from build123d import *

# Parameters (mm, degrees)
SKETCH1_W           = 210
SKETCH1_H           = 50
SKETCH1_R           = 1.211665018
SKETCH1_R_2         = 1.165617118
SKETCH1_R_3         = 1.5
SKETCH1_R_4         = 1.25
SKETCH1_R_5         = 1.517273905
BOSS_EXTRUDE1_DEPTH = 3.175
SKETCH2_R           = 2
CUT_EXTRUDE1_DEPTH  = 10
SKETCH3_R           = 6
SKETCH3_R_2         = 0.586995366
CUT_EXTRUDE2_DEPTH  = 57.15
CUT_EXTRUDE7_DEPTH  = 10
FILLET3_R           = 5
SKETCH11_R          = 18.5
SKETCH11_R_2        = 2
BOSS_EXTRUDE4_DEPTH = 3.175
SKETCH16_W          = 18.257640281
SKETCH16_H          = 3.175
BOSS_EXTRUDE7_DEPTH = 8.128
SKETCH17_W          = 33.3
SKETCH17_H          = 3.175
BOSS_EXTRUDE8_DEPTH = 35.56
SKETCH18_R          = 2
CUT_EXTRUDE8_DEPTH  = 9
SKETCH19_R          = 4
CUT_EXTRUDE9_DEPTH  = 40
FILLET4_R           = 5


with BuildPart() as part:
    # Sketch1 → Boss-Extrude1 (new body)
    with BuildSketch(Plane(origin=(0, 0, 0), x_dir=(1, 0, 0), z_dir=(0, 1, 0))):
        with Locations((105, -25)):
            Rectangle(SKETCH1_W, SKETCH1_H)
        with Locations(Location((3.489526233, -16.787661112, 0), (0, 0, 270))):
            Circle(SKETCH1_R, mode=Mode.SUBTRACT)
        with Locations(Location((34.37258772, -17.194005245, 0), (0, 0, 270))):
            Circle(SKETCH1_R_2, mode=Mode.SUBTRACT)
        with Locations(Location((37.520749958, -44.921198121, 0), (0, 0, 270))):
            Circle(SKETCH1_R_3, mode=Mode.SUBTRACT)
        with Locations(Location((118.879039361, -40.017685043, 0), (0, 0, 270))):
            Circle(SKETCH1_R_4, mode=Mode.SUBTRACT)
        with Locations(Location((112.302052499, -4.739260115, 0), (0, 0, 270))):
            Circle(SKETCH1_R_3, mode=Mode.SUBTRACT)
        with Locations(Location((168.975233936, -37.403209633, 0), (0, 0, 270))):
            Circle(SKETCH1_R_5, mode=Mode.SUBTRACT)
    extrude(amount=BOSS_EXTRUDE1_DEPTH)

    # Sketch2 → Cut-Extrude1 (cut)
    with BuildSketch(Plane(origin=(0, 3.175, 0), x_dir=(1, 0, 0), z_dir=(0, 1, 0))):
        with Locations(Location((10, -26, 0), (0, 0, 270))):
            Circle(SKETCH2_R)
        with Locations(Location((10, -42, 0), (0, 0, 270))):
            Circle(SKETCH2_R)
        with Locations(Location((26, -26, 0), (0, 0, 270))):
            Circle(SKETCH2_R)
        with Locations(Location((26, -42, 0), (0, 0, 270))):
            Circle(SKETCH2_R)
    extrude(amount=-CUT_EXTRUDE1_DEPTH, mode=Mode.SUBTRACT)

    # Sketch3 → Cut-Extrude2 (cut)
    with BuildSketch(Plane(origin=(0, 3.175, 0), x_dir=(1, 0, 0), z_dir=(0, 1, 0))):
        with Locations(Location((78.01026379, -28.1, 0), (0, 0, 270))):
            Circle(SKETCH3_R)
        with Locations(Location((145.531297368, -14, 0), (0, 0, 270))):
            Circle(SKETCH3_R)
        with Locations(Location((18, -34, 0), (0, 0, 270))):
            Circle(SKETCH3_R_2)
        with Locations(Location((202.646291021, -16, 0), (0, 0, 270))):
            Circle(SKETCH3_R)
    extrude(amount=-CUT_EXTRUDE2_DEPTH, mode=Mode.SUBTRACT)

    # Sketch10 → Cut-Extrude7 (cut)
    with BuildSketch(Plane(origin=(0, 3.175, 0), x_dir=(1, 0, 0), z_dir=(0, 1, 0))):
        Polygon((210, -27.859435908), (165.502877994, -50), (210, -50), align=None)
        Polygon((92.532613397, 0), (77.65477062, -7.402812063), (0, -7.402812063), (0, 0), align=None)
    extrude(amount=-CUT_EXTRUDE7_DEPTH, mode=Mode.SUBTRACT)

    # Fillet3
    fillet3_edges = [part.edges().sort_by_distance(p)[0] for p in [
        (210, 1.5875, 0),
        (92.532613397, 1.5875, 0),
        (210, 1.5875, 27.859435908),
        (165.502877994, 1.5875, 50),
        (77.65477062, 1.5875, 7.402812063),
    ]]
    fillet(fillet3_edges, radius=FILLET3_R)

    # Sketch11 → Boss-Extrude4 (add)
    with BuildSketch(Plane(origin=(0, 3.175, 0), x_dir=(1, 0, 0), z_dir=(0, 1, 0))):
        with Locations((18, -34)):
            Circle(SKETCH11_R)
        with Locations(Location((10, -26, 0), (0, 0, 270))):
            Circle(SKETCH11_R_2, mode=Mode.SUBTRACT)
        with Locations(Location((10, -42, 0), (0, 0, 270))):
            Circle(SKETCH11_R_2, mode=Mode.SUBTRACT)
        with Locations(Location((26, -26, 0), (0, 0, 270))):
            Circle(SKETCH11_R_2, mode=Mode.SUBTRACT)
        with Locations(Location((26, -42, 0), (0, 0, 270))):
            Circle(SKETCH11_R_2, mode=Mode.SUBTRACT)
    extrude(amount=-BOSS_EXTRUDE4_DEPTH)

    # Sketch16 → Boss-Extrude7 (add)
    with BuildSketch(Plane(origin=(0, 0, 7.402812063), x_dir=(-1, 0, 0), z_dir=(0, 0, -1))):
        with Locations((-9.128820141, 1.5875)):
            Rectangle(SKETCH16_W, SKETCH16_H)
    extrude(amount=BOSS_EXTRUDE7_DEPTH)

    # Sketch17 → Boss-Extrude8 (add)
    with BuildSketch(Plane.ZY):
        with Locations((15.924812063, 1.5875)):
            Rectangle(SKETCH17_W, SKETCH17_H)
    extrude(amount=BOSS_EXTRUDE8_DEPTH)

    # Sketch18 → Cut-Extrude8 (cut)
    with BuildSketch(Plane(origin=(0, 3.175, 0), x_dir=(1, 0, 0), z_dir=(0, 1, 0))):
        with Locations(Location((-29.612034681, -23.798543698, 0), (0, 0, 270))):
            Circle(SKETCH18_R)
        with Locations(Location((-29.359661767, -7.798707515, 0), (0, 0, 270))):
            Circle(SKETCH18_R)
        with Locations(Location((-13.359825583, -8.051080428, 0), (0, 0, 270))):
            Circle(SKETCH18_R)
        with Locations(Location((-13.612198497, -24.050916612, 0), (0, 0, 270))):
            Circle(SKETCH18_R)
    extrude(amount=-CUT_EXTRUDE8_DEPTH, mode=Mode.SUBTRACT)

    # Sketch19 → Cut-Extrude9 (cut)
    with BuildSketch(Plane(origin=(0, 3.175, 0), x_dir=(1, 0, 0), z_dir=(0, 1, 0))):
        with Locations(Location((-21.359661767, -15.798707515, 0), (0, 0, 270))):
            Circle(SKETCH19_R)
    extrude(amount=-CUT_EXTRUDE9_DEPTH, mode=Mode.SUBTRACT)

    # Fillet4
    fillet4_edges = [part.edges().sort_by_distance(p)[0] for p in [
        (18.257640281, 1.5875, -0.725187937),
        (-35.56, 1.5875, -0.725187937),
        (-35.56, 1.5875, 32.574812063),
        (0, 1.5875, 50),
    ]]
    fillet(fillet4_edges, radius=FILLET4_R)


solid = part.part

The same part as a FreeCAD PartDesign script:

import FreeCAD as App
import Part
import Sketcher


def edges_at(feature, points):
    """Names of the edges that pass closest to the given points."""
    edges = feature.Shape.Edges
    near = lambda p: min(range(len(edges)), key=lambda i: edges[i].distToShape(Part.Vertex(*p))[0])
    return sorted({f"Edge{near(p) + 1}" for p in points})

doc = App.newDocument("Part")
body = doc.addObject("PartDesign::Body", "Body")

# Sketch on XZ plane
sketch1 = body.newObject("Sketcher::SketchObject", "Sketch")
sketch1.AttachmentSupport = (doc.getObject("XZ_Plane"), [""])
sketch1.MapMode = "FlatFace"
sketch1.addGeometry(Part.LineSegment(App.Vector(0, 0, 0), App.Vector(0, 50, 0)), False)
sketch1.addGeometry(Part.LineSegment(App.Vector(0, 50, 0), App.Vector(210, 50, 0)), False)
sketch1.addGeometry(Part.LineSegment(App.Vector(210, 50, 0), App.Vector(210, 0, 0)), False)
sketch1.addGeometry(Part.LineSegment(App.Vector(210, 0, 0), App.Vector(0, 0, 0)), False)
sketch1.addGeometry(Part.Circle(App.Vector(37.5, 44.9, 0), App.Vector(0, 0, 1), 1.5), False)
sketch1.addGeometry(Part.Circle(App.Vector(118.9, 40, 0), App.Vector(0, 0, 1), 1.2), False)
sketch1.addGeometry(Part.Circle(App.Vector(169, 37.4, 0), App.Vector(0, 0, 1), 1.5), False)
sketch1.addGeometry(Part.Circle(App.Vector(3.5, 16.8, 0), App.Vector(0, 0, 1), 1.2), False)
sketch1.addGeometry(Part.Circle(App.Vector(34.4, 17.2, 0), App.Vector(0, 0, 1), 1.2), False)
sketch1.addGeometry(Part.Circle(App.Vector(112.3, 4.7, 0), App.Vector(0, 0, 1), 1.5), False)
sketch1.addConstraint(Sketcher.Constraint("Coincident", 0, 2, 1, 1))
sketch1.addConstraint(Sketcher.Constraint("Coincident", 1, 2, 2, 1))
sketch1.addConstraint(Sketcher.Constraint("Coincident", 2, 2, 3, 1))
sketch1.addConstraint(Sketcher.Constraint("Coincident", 3, 2, 0, 1))
sketch1.addConstraint(Sketcher.Constraint("Vertical", 0))
sketch1.addConstraint(Sketcher.Constraint("Horizontal", 1))
sketch1.addConstraint(Sketcher.Constraint("Vertical", 2))
sketch1.addConstraint(Sketcher.Constraint("Horizontal", 3))
sketch1.addConstraint(Sketcher.Constraint("Coincident", 3, 2, -1, 1))
sketch1.addConstraint(Sketcher.Constraint("Equal", 4, 9))
sketch1.addConstraint(Sketcher.Constraint("Diameter", 4, 3.0))
sketch1.addConstraint(Sketcher.Constraint("Diameter", 5, 2.5))
sketch1.addConstraint(Sketcher.Constraint("DistanceX", 1, 1, 1, 2, 210.0))
sketch1.addConstraint(Sketcher.Constraint("DistanceY", 0, 1, 0, 2, 50.0))
sketch1.addConstraint(Sketcher.Constraint("Diameter", 7, 2.42333))
sketch1.addConstraint(Sketcher.Constraint("Diameter", 6, 3.034548))
sketch1.addConstraint(Sketcher.Constraint("Diameter", 8, 2.331234))
sketch1.addConstraint(Sketcher.Constraint("DistanceY", -1, 1, 4, 3, 44.921198))
sketch1.addConstraint(Sketcher.Constraint("DistanceY", 9, 3, 7, 3, 12.048401))
sketch1.addConstraint(Sketcher.Constraint("DistanceX", -1, 1, 4, 3, 37.52075))
sketch1.addConstraint(Sketcher.Constraint("DistanceX", -1, 1, 5, 3, 118.879039))
sketch1.addConstraint(Sketcher.Constraint("DistanceY", -1, 1, 6, 3, 37.40321))
sketch1.addConstraint(Sketcher.Constraint("DistanceY", -1, 1, 7, 3, 16.787661))
sketch1.addConstraint(Sketcher.Constraint("DistanceX", 7, 3, 8, 3, 30.883061))
sketch1.addConstraint(Sketcher.Constraint("DistanceX", 8, 3, 5, 3, 84.506452))
sketch1.addConstraint(Sketcher.Constraint("DistanceY", 8, 3, 5, 3, 22.82368))
sketch1.addConstraint(Sketcher.Constraint("DistanceX", 9, 3, 6, 3, 56.673181))
sketch1.addConstraint(Sketcher.Constraint("DistanceY", -1, 1, 5, 3, 40.017685))
sketch1.addConstraint(Sketcher.Constraint("DistanceX", -1, 1, 6, 3, 168.975234))
pad1 = body.newObject("PartDesign::Pad", "Pad")
pad1.Profile = sketch1
pad1.Length = 3.175
pad1.Reversed = True

# Sketch on XZ plane
sketch2 = body.newObject("Sketcher::SketchObject", "Sketch001")
sketch2.AttachmentSupport = (doc.getObject("XZ_Plane"), [""])
sketch2.MapMode = "FlatFace"
sketch2.AttachmentOffset = App.Placement(App.Vector(0, 0, -3.175), App.Rotation())
sketch2.addGeometry(Part.Circle(App.Vector(10, 26, 0), App.Vector(0, 0, 1), 2), False)
sketch2.addGeometry(Part.Circle(App.Vector(10, 42, 0), App.Vector(0, 0, 1), 2), False)
sketch2.addGeometry(Part.Circle(App.Vector(26, 26, 0), App.Vector(0, 0, 1), 2), False)
sketch2.addGeometry(Part.Circle(App.Vector(26, 42, 0), App.Vector(0, 0, 1), 2), False)
sketch2.addConstraint(Sketcher.Constraint("Equal", 0, 1))
sketch2.addConstraint(Sketcher.Constraint("Equal", 1, 2))
sketch2.addConstraint(Sketcher.Constraint("Equal", 2, 3))
sketch2.addConstraint(Sketcher.Constraint("Horizontal", 0, 3, 2, 3))
sketch2.addConstraint(Sketcher.Constraint("Horizontal", 1, 3, 3, 3))
sketch2.addConstraint(Sketcher.Constraint("Vertical", 0, 3, 1, 3))
sketch2.addConstraint(Sketcher.Constraint("Vertical", 2, 3, 3, 3))
sketch2.addConstraint(Sketcher.Constraint("Diameter", 0, 4.0))
sketch2.addConstraint(Sketcher.Constraint("DistanceX", -1, 1, 0, 3, 10.0))
sketch2.addConstraint(Sketcher.Constraint("DistanceY", -1, 1, 0, 3, 26.0))
sketch2.addConstraint(Sketcher.Constraint("DistanceY", -1, 1, 1, 3, 42.0))
sketch2.addConstraint(Sketcher.Constraint("DistanceX", -1, 1, 2, 3, 26.0))
pocket1 = body.newObject("PartDesign::Pocket", "Pocket")
pocket1.Profile = sketch2
pocket1.Length = 10
pocket1.Reversed = True

# Sketch on XZ plane
sketch3 = body.newObject("Sketcher::SketchObject", "Sketch002")
sketch3.AttachmentSupport = (doc.getObject("XZ_Plane"), [""])
sketch3.MapMode = "FlatFace"
sketch3.AttachmentOffset = App.Placement(App.Vector(0, 0, -3.175), App.Rotation())
sketch3.addGeometry(Part.Circle(App.Vector(78, 28.1, 0), App.Vector(0, 0, 1), 6), False)
sketch3.addGeometry(Part.Circle(App.Vector(145.5, 14, 0), App.Vector(0, 0, 1), 6), False)
sketch3.addGeometry(Part.Circle(App.Vector(18, 34, 0), App.Vector(0, 0, 1), 0.6), False)
sketch3.addGeometry(Part.Circle(App.Vector(202.6, 16, 0), App.Vector(0, 0, 1), 6), False)
sketch3.addConstraint(Sketcher.Constraint("Equal", 0, 1))
sketch3.addConstraint(Sketcher.Constraint("Equal", 1, 3))
sketch3.addConstraint(Sketcher.Constraint("Diameter", 0, 12.0))
sketch3.addConstraint(Sketcher.Constraint("DistanceY", -1, 1, 1, 3, 14.0))
sketch3.addConstraint(Sketcher.Constraint("DistanceX", -1, 1, 2, 3, 18.0))
sketch3.addConstraint(Sketcher.Constraint("DistanceY", -1, 1, 2, 3, 34.0))
sketch3.addConstraint(Sketcher.Constraint("DistanceY", -1, 1, 3, 3, 16.0))
sketch3.addConstraint(Sketcher.Constraint("DistanceY", -1, 1, 0, 3, 28.1))
sketch3.addConstraint(Sketcher.Constraint("Diameter", 2, 1.173991))
sketch3.addConstraint(Sketcher.Constraint("DistanceX", -1, 1, 3, 3, 202.646291))
sketch3.addConstraint(Sketcher.Constraint("DistanceX", -1, 1, 0, 3, 78.010264))
sketch3.addConstraint(Sketcher.Constraint("DistanceX", -1, 1, 1, 3, 145.531297))
pocket2 = body.newObject("PartDesign::Pocket", "Pocket001")
pocket2.Profile = sketch3
pocket2.Length = 57.15
pocket2.Reversed = True

# Sketch on XZ plane
sketch4 = body.newObject("Sketcher::SketchObject", "Sketch003")
sketch4.AttachmentSupport = (doc.getObject("XZ_Plane"), [""])
sketch4.MapMode = "FlatFace"
sketch4.AttachmentOffset = App.Placement(App.Vector(0, 0, -3.175), App.Rotation())
sketch4.addGeometry(Part.LineSegment(App.Vector(210, 28, 0), App.Vector(166, 50, 0)), False)
sketch4.addGeometry(Part.LineSegment(App.Vector(166, 50, 0), App.Vector(210, 50, 0)), False)
sketch4.addGeometry(Part.LineSegment(App.Vector(210, 50, 0), App.Vector(210, 28, 0)), False)
sketch4.addGeometry(Part.LineSegment(App.Vector(78, 7, 0), App.Vector(93, 0, 0)), False)
sketch4.addGeometry(Part.LineSegment(App.Vector(93, 0, 0), App.Vector(0, 0, 0)), False)
sketch4.addGeometry(Part.LineSegment(App.Vector(0, 0, 0), App.Vector(0, 7, 0)), False)
sketch4.addGeometry(Part.LineSegment(App.Vector(0, 7, 0), App.Vector(78, 7, 0)), False)
sketch4.addConstraint(Sketcher.Constraint("Coincident", 0, 2, 1, 1))
sketch4.addConstraint(Sketcher.Constraint("Coincident", 1, 2, 2, 1))
sketch4.addConstraint(Sketcher.Constraint("Coincident", 2, 2, 0, 1))
sketch4.addConstraint(Sketcher.Constraint("Coincident", 3, 2, 4, 1))
sketch4.addConstraint(Sketcher.Constraint("Coincident", 4, 2, 5, 1))
sketch4.addConstraint(Sketcher.Constraint("Coincident", 5, 2, 6, 1))
sketch4.addConstraint(Sketcher.Constraint("Coincident", 6, 2, 3, 1))
sketch4.addConstraint(Sketcher.Constraint("Horizontal", 1))
sketch4.addConstraint(Sketcher.Constraint("Vertical", 2))
sketch4.addConstraint(Sketcher.Constraint("Horizontal", 4))
sketch4.addConstraint(Sketcher.Constraint("Vertical", 5))
sketch4.addConstraint(Sketcher.Constraint("Horizontal", 6))
sketch4.addConstraint(Sketcher.Constraint("Coincident", 4, 2, -1, 1))
sketch4.addConstraint(Sketcher.Constraint("Parallel", 0, 3))
sketch4.addConstraint(Sketcher.Constraint("DistanceY", -1, 1, 0, 2, 50.0))
sketch4.addConstraint(Sketcher.Constraint("DistanceX", -1, 1, 1, 2, 210.0))
sketch4.addConstraint(Sketcher.Constraint("DistanceX", 6, 1, 6, 2, 77.654771))
sketch4.addConstraint(Sketcher.Constraint("Distance", 0, 49.701091))
sketch4.addConstraint(Sketcher.Constraint("DistanceX", 1, 1, 1, 2, 44.497122))
sketch4.addConstraint(Sketcher.Constraint("DistanceX", 4, 2, 4, 1, 92.532613))
pocket3 = body.newObject("PartDesign::Pocket", "Pocket002")
pocket3.Profile = sketch4
pocket3.Length = 10
pocket3.Reversed = True
doc.recompute()

fillet = body.newObject("PartDesign::Fillet", "Fillet")
fillet.Base = (pocket3, edges_at(pocket3, [
    (210, 1.587, 0),
    (92.533, 1.587, 0),
    (210, 1.587, 27.859),
    (165.503, 1.587, 50),
    (77.655, 1.587, 7.403),
]))
fillet.Radius = 5

# Sketch on XZ plane
sketch5 = body.newObject("Sketcher::SketchObject", "Sketch004")
sketch5.AttachmentSupport = (doc.getObject("XZ_Plane"), [""])
sketch5.MapMode = "FlatFace"
sketch5.AttachmentOffset = App.Placement(App.Vector(0, 0, -3.175), App.Rotation())
sketch5.addGeometry(Part.Circle(App.Vector(18, 34, 0), App.Vector(0, 0, 1), 18.5), False)
sketch5.addGeometry(Part.Circle(App.Vector(10, 42, 0), App.Vector(0, 0, 1), 2), False)
sketch5.addGeometry(Part.Circle(App.Vector(26, 42, 0), App.Vector(0, 0, 1), 2), False)
sketch5.addGeometry(Part.Circle(App.Vector(10, 26, 0), App.Vector(0, 0, 1), 2), False)
sketch5.addGeometry(Part.Circle(App.Vector(26, 26, 0), App.Vector(0, 0, 1), 2), False)
sketch5.addConstraint(Sketcher.Constraint("Equal", 1, 2))
sketch5.addConstraint(Sketcher.Constraint("Equal", 2, 3))
sketch5.addConstraint(Sketcher.Constraint("Equal", 3, 4))
sketch5.addConstraint(Sketcher.Constraint("Horizontal", 1, 3, 2, 3))
sketch5.addConstraint(Sketcher.Constraint("Horizontal", 3, 3, 4, 3))
sketch5.addConstraint(Sketcher.Constraint("Vertical", 1, 3, 3, 3))
sketch5.addConstraint(Sketcher.Constraint("Vertical", 2, 3, 4, 3))
sketch5.addConstraint(Sketcher.Constraint("Diameter", 0, 37.0))
sketch5.addConstraint(Sketcher.Constraint("Diameter", 1, 4.0))
sketch5.addConstraint(Sketcher.Constraint("DistanceX", -1, 1, 0, 3, 18.0))
sketch5.addConstraint(Sketcher.Constraint("DistanceY", -1, 1, 0, 3, 34.0))
sketch5.addConstraint(Sketcher.Constraint("DistanceX", -1, 1, 1, 3, 10.0))
sketch5.addConstraint(Sketcher.Constraint("DistanceY", -1, 1, 1, 3, 42.0))
sketch5.addConstraint(Sketcher.Constraint("DistanceX", -1, 1, 2, 3, 26.0))
sketch5.addConstraint(Sketcher.Constraint("DistanceY", -1, 1, 3, 3, 26.0))
pad2 = body.newObject("PartDesign::Pad", "Pad001")
pad2.Profile = sketch5
pad2.Length = 3.175

# Sketch on XY plane
sketch6 = body.newObject("Sketcher::SketchObject", "Sketch005")
sketch6.AttachmentSupport = (doc.getObject("XY_Plane"), [""])
sketch6.MapMode = "FlatFace"
sketch6.AttachmentOffset = App.Placement(App.Vector(0, 0, 7.402812), App.Rotation())
sketch6.addGeometry(Part.LineSegment(App.Vector(18.3, 3.2, 0), App.Vector(18.3, 0, 0)), False)
sketch6.addGeometry(Part.LineSegment(App.Vector(18.3, 0, 0), App.Vector(0, 0, 0)), False)
sketch6.addGeometry(Part.LineSegment(App.Vector(0, 0, 0), App.Vector(0, 3.2, 0)), False)
sketch6.addGeometry(Part.LineSegment(App.Vector(0, 3.2, 0), App.Vector(18.3, 3.2, 0)), False)
sketch6.addConstraint(Sketcher.Constraint("Coincident", 0, 2, 1, 1))
sketch6.addConstraint(Sketcher.Constraint("Coincident", 1, 2, 2, 1))
sketch6.addConstraint(Sketcher.Constraint("Coincident", 2, 2, 3, 1))
sketch6.addConstraint(Sketcher.Constraint("Coincident", 3, 2, 0, 1))
sketch6.addConstraint(Sketcher.Constraint("Vertical", 0))
sketch6.addConstraint(Sketcher.Constraint("Horizontal", 1))
sketch6.addConstraint(Sketcher.Constraint("Vertical", 2))
sketch6.addConstraint(Sketcher.Constraint("Horizontal", 3))
sketch6.addConstraint(Sketcher.Constraint("Coincident", 1, 2, -1, 1))
sketch6.addConstraint(Sketcher.Constraint("DistanceY", 0, 2, 0, 1, 3.175))
sketch6.addConstraint(Sketcher.Constraint("DistanceX", 1, 2, 1, 1, 18.25764))
pad3 = body.newObject("PartDesign::Pad", "Pad002")
pad3.Profile = sketch6
pad3.Length = 8.128
pad3.Reversed = True

# Sketch on YZ plane
sketch7 = body.newObject("Sketcher::SketchObject", "Sketch006")
sketch7.AttachmentSupport = (doc.getObject("YZ_Plane"), [""])
sketch7.MapMode = "FlatFace"
sketch7.addGeometry(Part.LineSegment(App.Vector(3.2, -0.7, 0), App.Vector(0, -0.7, 0)), False)
sketch7.addGeometry(Part.LineSegment(App.Vector(0, -0.7, 0), App.Vector(0, 32.6, 0)), False)
sketch7.addGeometry(Part.LineSegment(App.Vector(0, 32.6, 0), App.Vector(3.2, 32.6, 0)), False)
sketch7.addGeometry(Part.LineSegment(App.Vector(3.2, 32.6, 0), App.Vector(3.2, -0.7, 0)), False)
sketch7.addConstraint(Sketcher.Constraint("Coincident", 0, 2, 1, 1))
sketch7.addConstraint(Sketcher.Constraint("Coincident", 1, 2, 2, 1))
sketch7.addConstraint(Sketcher.Constraint("Coincident", 2, 2, 3, 1))
sketch7.addConstraint(Sketcher.Constraint("Coincident", 3, 2, 0, 1))
sketch7.addConstraint(Sketcher.Constraint("Horizontal", 0))
sketch7.addConstraint(Sketcher.Constraint("Vertical", 1))
sketch7.addConstraint(Sketcher.Constraint("Horizontal", 2))
sketch7.addConstraint(Sketcher.Constraint("Vertical", 3))
sketch7.addConstraint(Sketcher.Constraint("PointOnObject", 0, 2, -2))
sketch7.addConstraint(Sketcher.Constraint("DistanceY", 1, 1, 1, 2, 33.3))
sketch7.addConstraint(Sketcher.Constraint("DistanceX", 0, 2, 0, 1, 3.175))
sketch7.addConstraint(Sketcher.Constraint("DistanceY", 0, 2, -1, 1, 0.725188))
pad4 = body.newObject("PartDesign::Pad", "Pad003")
pad4.Profile = sketch7
pad4.Length = 35.56
pad4.Reversed = True

# Sketch on XZ plane
sketch8 = body.newObject("Sketcher::SketchObject", "Sketch007")
sketch8.AttachmentSupport = (doc.getObject("XZ_Plane"), [""])
sketch8.MapMode = "FlatFace"
sketch8.AttachmentOffset = App.Placement(App.Vector(0, 0, -3.175), App.Rotation())
sketch8.addGeometry(Part.Circle(App.Vector(-29.6, 23.8, 0), App.Vector(0, 0, 1), 2), False)
sketch8.addGeometry(Part.Circle(App.Vector(-29.4, 7.8, 0), App.Vector(0, 0, 1), 2), False)
sketch8.addGeometry(Part.Circle(App.Vector(-13.4, 8.1, 0), App.Vector(0, 0, 1), 2), False)
sketch8.addGeometry(Part.Circle(App.Vector(-13.6, 24.1, 0), App.Vector(0, 0, 1), 2), False)
sketch8.addConstraint(Sketcher.Constraint("Equal", 0, 1))
sketch8.addConstraint(Sketcher.Constraint("Equal", 1, 2))
sketch8.addConstraint(Sketcher.Constraint("Equal", 2, 3))
sketch8.addConstraint(Sketcher.Constraint("Diameter", 0, 4.0))
sketch8.addConstraint(Sketcher.Constraint("DistanceX", 3, 3, -1, 1, 13.612198))
sketch8.addConstraint(Sketcher.Constraint("DistanceX", 1, 3, -1, 1, 29.359662))
sketch8.addConstraint(Sketcher.Constraint("DistanceY", -1, 1, 2, 3, 8.05108))
sketch8.addConstraint(Sketcher.Constraint("DistanceX", 0, 3, 2, 3, 16.252209))
sketch8.addConstraint(Sketcher.Constraint("DistanceY", 1, 3, 3, 3, 16.252209))
sketch8.addConstraint(Sketcher.Constraint("DistanceX", 0, 3, -1, 1, 29.612035))
sketch8.addConstraint(Sketcher.Constraint("DistanceY", -1, 1, 0, 3, 23.798544))
sketch8.addConstraint(Sketcher.Constraint("DistanceY", -1, 1, 1, 3, 7.798708))
pocket4 = body.newObject("PartDesign::Pocket", "Pocket003")
pocket4.Profile = sketch8
pocket4.Length = 9
pocket4.Reversed = True

# Sketch on XZ plane
sketch9 = body.newObject("Sketcher::SketchObject", "Sketch008")
sketch9.AttachmentSupport = (doc.getObject("XZ_Plane"), [""])
sketch9.MapMode = "FlatFace"
sketch9.AttachmentOffset = App.Placement(App.Vector(0, 0, -3.175), App.Rotation())
sketch9.addGeometry(Part.Circle(App.Vector(-21.4, 15.8, 0), App.Vector(0, 0, 1), 4), False)
sketch9.addConstraint(Sketcher.Constraint("Diameter", 0, 8.0))
sketch9.addConstraint(Sketcher.Constraint("DistanceX", 0, 3, -1, 1, 21.359662))
sketch9.addConstraint(Sketcher.Constraint("DistanceY", -1, 1, 0, 3, 15.798708))
pocket5 = body.newObject("PartDesign::Pocket", "Pocket004")
pocket5.Profile = sketch9
pocket5.Length = 40
pocket5.Reversed = True
doc.recompute()

fillet2 = body.newObject("PartDesign::Fillet", "Fillet001")
fillet2.Base = (pocket5, edges_at(pocket5, [
    (18.258, 1.587, -0.725),
    (-35.56, 1.587, -0.725),
    (-35.56, 1.587, 32.575),
    (0, 1.587, 50),
]))
fillet2.Radius = 5

doc.recompute()
